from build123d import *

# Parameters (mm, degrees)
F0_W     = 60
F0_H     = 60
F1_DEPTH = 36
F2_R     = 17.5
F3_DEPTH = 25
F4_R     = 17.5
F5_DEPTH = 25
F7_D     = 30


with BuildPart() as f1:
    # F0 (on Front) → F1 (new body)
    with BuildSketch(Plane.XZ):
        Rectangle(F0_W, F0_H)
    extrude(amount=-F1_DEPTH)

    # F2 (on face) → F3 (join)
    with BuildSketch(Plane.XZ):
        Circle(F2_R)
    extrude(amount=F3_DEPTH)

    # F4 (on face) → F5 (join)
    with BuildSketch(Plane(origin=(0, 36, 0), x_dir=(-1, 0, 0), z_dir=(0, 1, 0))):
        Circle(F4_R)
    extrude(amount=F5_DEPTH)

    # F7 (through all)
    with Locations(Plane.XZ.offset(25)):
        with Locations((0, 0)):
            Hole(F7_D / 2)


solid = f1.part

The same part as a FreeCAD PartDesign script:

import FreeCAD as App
import Part
import Sketcher
from FreeCAD import Vector
Q = App.Units.Quantity

doc = App.newDocument("Part")
body = doc.addObject("PartDesign::Body", "Body")

sketch1 = body.newObject("Sketcher::SketchObject", "Sketch")
sketch1.AttachmentSupport = (doc.getObject("XZ_Plane"), [""])
sketch1.MapMode = "FlatFace"
sketch1.addGeometry([
    Part.LineSegment(Vector(-30, 30, 0), Vector(-30, -30, 0)),
    Part.LineSegment(Vector(-30, -30, 0), Vector(30, -30, 0)),
    Part.LineSegment(Vector(30, -30, 0), Vector(30, 30, 0)),
    Part.LineSegment(Vector(30, 30, 0), Vector(-30, 30, 0)),
], False)
sketch1.addConstraint([
    Sketcher.Constraint("Coincident", 0, 2, 1, 1),
    Sketcher.Constraint("Coincident", 1, 2, 2, 1),
    Sketcher.Constraint("Coincident", 2, 2, 3, 1),
    Sketcher.Constraint("Coincident", 3, 2, 0, 1),
    Sketcher.Constraint("Vertical", 0),
    Sketcher.Constraint("Horizontal", 1),
    Sketcher.Constraint("Vertical", 2),
    Sketcher.Constraint("Horizontal", 3),
    Sketcher.Constraint("Symmetric", 0, 2, 2, 2, -1, 1),
    Sketcher.Constraint("Equal", 3, 0),
    Sketcher.Constraint("DistanceX", 1, 1, 1, 2, Q("60 mm")),
])
pad1 = body.newObject("PartDesign::Pad", "Pad")
pad1.Profile = sketch1
pad1.Length = 36
pad1.Reversed = True

sketch2 = body.newObject("Sketcher::SketchObject", "Sketch001")
sketch2.AttachmentSupport = (doc.getObject("XZ_Plane"), [""])
sketch2.MapMode = "FlatFace"
sketch2.addGeometry(Part.Circle(Vector(0, 0, 0), Vector(0, 0, 1), 18), False)
sketch2.addConstraint([
    Sketcher.Constraint("Coincident", 0, 3, -1, 1),
    Sketcher.Constraint("Diameter", 0, Q("35 mm")),
])
pad2 = body.newObject("PartDesign::Pad", "Pad001")
pad2.Profile = sketch2
pad2.Length = 25

sketch3 = body.newObject("Sketcher::SketchObject", "Sketch002")
sketch3.AttachmentSupport = (doc.getObject("XZ_Plane"), [""])
sketch3.MapMode = "FlatFace"
sketch3.AttachmentOffset = App.Placement(Vector(0, 0, -36), App.Rotation())
sketch3.addGeometry(Part.Circle(Vector(0, 0, 0), Vector(0, 0, 1), 18), False)
sketch3.addConstraint([
    Sketcher.Constraint("Coincident", 0, 3, -1, 1),
    Sketcher.Constraint("Diameter", 0, Q("35 mm")),
])
pad3 = body.newObject("PartDesign::Pad", "Pad002")
pad3.Profile = sketch3
pad3.Length = 25
pad3.Reversed = True

sketch4 = body.newObject("Sketcher::SketchObject", "Sketch003")
sketch4.AttachmentSupport = (doc.getObject("XZ_Plane"), [""])
sketch4.MapMode = "FlatFace"
sketch4.AttachmentOffset = App.Placement(Vector(0, 0, 25), App.Rotation())
sketch4.addGeometry(Part.Circle(Vector(0, 0, 0), Vector(0, 0, 1), 15), False)
sketch4.addConstraint([
    Sketcher.Constraint("Coincident", 0, 3, -1, 1),
    Sketcher.Constraint("Diameter", 0, Q("30 mm")),
])
doc.recompute()
hole = body.newObject("PartDesign::Hole", "Hole")
hole.Profile = sketch4
hole.ThreadType = "None"
hole.Diameter = 30
hole.DepthType = "ThroughAll"

doc.recompute()
